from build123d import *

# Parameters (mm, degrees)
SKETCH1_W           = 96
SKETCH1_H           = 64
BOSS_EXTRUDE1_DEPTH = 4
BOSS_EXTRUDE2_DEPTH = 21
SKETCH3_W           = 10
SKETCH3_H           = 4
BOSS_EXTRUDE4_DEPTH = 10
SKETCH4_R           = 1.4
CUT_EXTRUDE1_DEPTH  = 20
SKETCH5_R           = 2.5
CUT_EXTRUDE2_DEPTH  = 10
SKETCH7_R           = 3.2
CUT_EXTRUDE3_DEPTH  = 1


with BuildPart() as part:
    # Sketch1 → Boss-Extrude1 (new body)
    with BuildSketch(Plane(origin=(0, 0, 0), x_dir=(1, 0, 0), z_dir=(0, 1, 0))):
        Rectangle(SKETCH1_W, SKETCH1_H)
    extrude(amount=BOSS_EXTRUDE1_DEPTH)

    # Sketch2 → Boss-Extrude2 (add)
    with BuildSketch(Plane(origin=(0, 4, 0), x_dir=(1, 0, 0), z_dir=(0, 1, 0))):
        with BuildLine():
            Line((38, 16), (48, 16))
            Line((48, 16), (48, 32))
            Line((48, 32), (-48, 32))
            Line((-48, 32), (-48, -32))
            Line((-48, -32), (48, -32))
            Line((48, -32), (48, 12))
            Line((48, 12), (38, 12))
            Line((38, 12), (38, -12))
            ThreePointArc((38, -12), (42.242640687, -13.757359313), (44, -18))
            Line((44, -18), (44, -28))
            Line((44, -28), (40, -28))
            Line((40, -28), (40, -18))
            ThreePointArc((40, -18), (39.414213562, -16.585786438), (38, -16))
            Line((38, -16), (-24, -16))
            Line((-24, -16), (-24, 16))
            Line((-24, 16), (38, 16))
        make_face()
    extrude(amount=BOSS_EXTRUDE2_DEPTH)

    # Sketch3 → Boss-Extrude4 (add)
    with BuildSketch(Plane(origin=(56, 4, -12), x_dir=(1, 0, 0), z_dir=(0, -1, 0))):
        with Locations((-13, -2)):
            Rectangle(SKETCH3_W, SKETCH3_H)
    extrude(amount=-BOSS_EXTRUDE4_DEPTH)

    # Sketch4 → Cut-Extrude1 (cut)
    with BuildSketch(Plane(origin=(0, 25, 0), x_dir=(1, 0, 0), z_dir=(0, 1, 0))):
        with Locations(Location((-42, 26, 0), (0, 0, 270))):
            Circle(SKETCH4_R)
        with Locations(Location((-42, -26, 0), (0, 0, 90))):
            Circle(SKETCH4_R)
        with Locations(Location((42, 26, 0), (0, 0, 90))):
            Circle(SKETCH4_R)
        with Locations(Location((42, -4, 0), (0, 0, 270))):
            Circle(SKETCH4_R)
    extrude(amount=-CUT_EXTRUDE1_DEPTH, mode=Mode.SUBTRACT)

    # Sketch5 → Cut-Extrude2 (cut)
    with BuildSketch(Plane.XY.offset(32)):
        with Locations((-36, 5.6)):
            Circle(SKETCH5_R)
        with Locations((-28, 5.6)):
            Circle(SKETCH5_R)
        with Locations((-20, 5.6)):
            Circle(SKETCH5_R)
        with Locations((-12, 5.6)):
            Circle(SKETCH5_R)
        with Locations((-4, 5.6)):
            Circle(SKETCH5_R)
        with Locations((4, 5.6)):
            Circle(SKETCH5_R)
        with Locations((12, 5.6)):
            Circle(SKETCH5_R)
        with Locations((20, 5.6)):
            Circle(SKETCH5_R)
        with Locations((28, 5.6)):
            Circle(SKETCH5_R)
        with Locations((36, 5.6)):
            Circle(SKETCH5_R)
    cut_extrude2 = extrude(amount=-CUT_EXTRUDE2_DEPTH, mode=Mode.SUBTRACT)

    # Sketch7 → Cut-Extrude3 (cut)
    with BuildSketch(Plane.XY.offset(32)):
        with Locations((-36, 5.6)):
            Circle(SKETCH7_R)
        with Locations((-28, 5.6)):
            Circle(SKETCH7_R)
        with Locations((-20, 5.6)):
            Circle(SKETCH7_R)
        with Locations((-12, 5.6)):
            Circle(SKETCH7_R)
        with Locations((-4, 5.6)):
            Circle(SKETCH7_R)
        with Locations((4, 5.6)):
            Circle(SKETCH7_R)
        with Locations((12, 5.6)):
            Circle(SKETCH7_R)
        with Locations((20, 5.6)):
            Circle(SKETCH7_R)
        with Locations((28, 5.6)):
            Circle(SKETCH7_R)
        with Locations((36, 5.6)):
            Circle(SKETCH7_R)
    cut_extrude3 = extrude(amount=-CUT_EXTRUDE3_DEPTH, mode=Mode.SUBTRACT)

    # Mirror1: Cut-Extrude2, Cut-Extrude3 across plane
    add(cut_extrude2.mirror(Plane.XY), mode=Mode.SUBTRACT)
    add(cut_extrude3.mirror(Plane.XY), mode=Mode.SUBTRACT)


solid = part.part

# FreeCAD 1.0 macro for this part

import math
import FreeCAD as App
import Part
import Sketcher
Q = App.Units.Quantity

doc = App.newDocument("Part")
body = doc.addObject("PartDesign::Body", "Body")

# Sketch on XZ plane
sketch1 = body.newObject("Sketcher::SketchObject", "Sketch")
sketch1.AttachmentSupport = (doc.getObject("XZ_Plane"), [""])
sketch1.MapMode = "FlatFace"
sketch1.addGeometry(Part.LineSegment(App.Vector(-48, -32, 0), App.Vector(-48, 32, 0)), False)
sketch1.addGeometry(Part.LineSegment(App.Vector(-48, 32, 0), App.Vector(48, 32, 0)), False)
sketch1.addGeometry(Part.LineSegment(App.Vector(48, 32, 0), App.Vector(48, -32, 0)), False)
sketch1.addGeometry(Part.LineSegment(App.Vector(48, -32, 0), App.Vector(-48, -32, 0)), False)
sketch1.addConstraint(Sketcher.Constraint("Coincident", 0, 2, 1, 1))
sketch1.addConstraint(Sketcher.Constraint("Coincident", 1, 2, 2, 1))
sketch1.addConstraint(Sketcher.Constraint("Coincident", 2, 2, 3, 1))
sketch1.addConstraint(Sketcher.Constraint("Coincident", 3, 2, 0, 1))
sketch1.addConstraint(Sketcher.Constraint("Vertical", 0))
sketch1.addConstraint(Sketcher.Constraint("Horizontal", 1))
sketch1.addConstraint(Sketcher.Constraint("Vertical", 2))
sketch1.addConstraint(Sketcher.Constraint("Horizontal", 3))
sketch1.addConstraint(Sketcher.Constraint("Symmetric", 0, 2, 2, 2, -1, 1))
sketch1.addConstraint(Sketcher.Constraint("DistanceX", 1, 1, 1, 2, Q("96 mm")))
sketch1.addConstraint(Sketcher.Constraint("DistanceY", 0, 1, 0, 2, Q("64 mm")))
pad1 = body.newObject("PartDesign::Pad", "Pad")
pad1.Profile = sketch1
pad1.Length = 4
pad1.Reversed = True

# Sketch on XZ plane
sketch2 = body.newObject("Sketcher::SketchObject", "Sketch001")
sketch2.AttachmentSupport = (doc.getObject("XZ_Plane"), [""])
sketch2.MapMode = "FlatFace"
sketch2.AttachmentOffset = App.Placement(App.Vector(0, 0, -4), App.Rotation())
sketch2.addGeometry(Part.LineSegment(App.Vector(48, -16, 0), App.Vector(48, -32, 0)), False)
sketch2.addGeometry(Part.LineSegment(App.Vector(48, -32, 0), App.Vector(-48, -32, 0)), False)
sketch2.addGeometry(Part.LineSegment(App.Vector(-48, -32, 0), App.Vector(-48, 32, 0)), False)
sketch2.addGeometry(Part.LineSegment(App.Vector(-48, 32, 0), App.Vector(48, 32, 0)), False)
sketch2.addGeometry(Part.LineSegment(App.Vector(48, 32, 0), App.Vector(48, -12, 0)), False)
sketch2.addGeometry(Part.LineSegment(App.Vector(48, -12, 0), App.Vector(38, -12, 0)), False)
sketch2.addGeometry(Part.LineSegment(App.Vector(38, -12, 0), App.Vector(38, 12, 0)), False)
sketch2.addGeometry(Part.ArcOfCircle(Part.Circle(App.Vector(38, 18, 0), App.Vector(0, 0, 1), 6), math.radians(-90), math.radians(0)), False)
sketch2.addGeometry(Part.LineSegment(App.Vector(44, 18, 0), App.Vector(44, 28, 0)), False)
sketch2.addGeometry(Part.LineSegment(App.Vector(44, 28, 0), App.Vector(40, 28, 0)), False)
sketch2.addGeometry(Part.LineSegment(App.Vector(40, 28, 0), App.Vector(40, 18, 0)), False)
sketch2.addGeometry(Part.ArcOfCircle(Part.Circle(App.Vector(38, 18, 0), App.Vector(0, 0, 1), 2), math.radians(-90), math.radians(0)), False)
sketch2.addGeometry(Part.LineSegment(App.Vector(38, 16, 0), App.Vector(-24, 16, 0)), False)
sketch2.addGeometry(Part.LineSegment(App.Vector(-24, 16, 0), App.Vector(-24, -16, 0)), False)
sketch2.addGeometry(Part.LineSegment(App.Vector(-24, -16, 0), App.Vector(48, -16, 0)), False)
sketch2.addConstraint(Sketcher.Constraint("Coincident", 0, 2, 1, 1))
sketch2.addConstraint(Sketcher.Constraint("Coincident", 1, 2, 2, 1))
sketch2.addConstraint(Sketcher.Constraint("Coincident", 2, 2, 3, 1))
sketch2.addConstraint(Sketcher.Constraint("Coincident", 3, 2, 4, 1))
sketch2.addConstraint(Sketcher.Constraint("Coincident", 4, 2, 5, 1))
sketch2.addConstraint(Sketcher.Constraint("Coincident", 5, 2, 6, 1))
sketch2.addConstraint(Sketcher.Constraint("Coincident", 6, 2, 7, 1))
sketch2.addConstraint(Sketcher.Constraint("Tangent", 7, 2, 8, 1))
sketch2.addConstraint(Sketcher.Constraint("Coincident", 8, 2, 9, 1))
sketch2.addConstraint(Sketcher.Constraint("Coincident", 9, 2, 10, 1))
sketch2.addConstraint(Sketcher.Constraint("Tangent", 10, 2, 11, 2))
sketch2.addConstraint(Sketcher.Constraint("Tangent", 11, 1, 12, 1))
sketch2.addConstraint(Sketcher.Constraint("Coincident", 12, 2, 13, 1))
sketch2.addConstraint(Sketcher.Constraint("Coincident", 13, 2, 14, 1))
sketch2.addConstraint(Sketcher.Constraint("Coincident", 14, 2, 0, 1))
sketch2.addConstraint(Sketcher.Constraint("Vertical", 0))
sketch2.addConstraint(Sketcher.Constraint("Horizontal", 1))
sketch2.addConstraint(Sketcher.Constraint("Vertical", 2))
sketch2.addConstraint(Sketcher.Constraint("Horizontal", 3))
sketch2.addConstraint(Sketcher.Constraint("Vertical", 4))
sketch2.addConstraint(Sketcher.Constraint("Horizontal", 5))
sketch2.addConstraint(Sketcher.Constraint("Vertical", 6))
sketch2.addConstraint(Sketcher.Constraint("Vertical", 8))
sketch2.addConstraint(Sketcher.Constraint("Horizontal", 9))
sketch2.addConstraint(Sketcher.Constraint("Vertical", 10))
sketch2.addConstraint(Sketcher.Constraint("Horizontal", 12))
sketch2.addConstraint(Sketcher.Constraint("Vertical", 13))
sketch2.addConstraint(Sketcher.Constraint("Horizontal", 14))
sketch2.addConstraint(Sketcher.Constraint("Coincident", 11, 3, 7, 3))
sketch2.addConstraint(Sketcher.Constraint("Symmetric", 0, 2, 2, 2, -1, 1))
sketch2.addConstraint(Sketcher.Constraint("Vertical", 0, 2, 3, 2))
sketch2.addConstraint(Sketcher.Constraint("Vertical", 11, 3, 5, 2))
sketch2.addConstraint(Sketcher.Constraint("Equal", 5, 8))
sketch2.addConstraint(Sketcher.Constraint("Radius", 7, Q("6 mm")))
sketch2.addConstraint(Sketcher.Constraint("Radius", 11, Q("2 mm")))
sketch2.addConstraint(Sketcher.Constraint("DistanceX", 1, 2, 1, 1, Q("96 mm")))
sketch2.addConstraint(Sketcher.Constraint("DistanceX", 5, 2, 5, 1, Q("10 mm")))
sketch2.addConstraint(Sketcher.Constraint("DistanceX", 12, 2, 12, 1, Q("62 mm")))
sketch2.addConstraint(Sketcher.Constraint("DistanceY", 0, 2, 0, 1, Q("16 mm")))
sketch2.addConstraint(Sketcher.Constraint("DistanceY", 2, 1, 2, 2, Q("64 mm")))
sketch2.addConstraint(Sketcher.Constraint("DistanceY", 4, 2, 4, 1, Q("44 mm")))
sketch2.addConstraint(Sketcher.Constraint("DistanceY", 6, 1, 6, 2, Q("24 mm")))
pad2 = body.newObject("PartDesign::Pad", "Pad001")
pad2.Profile = sketch2
pad2.Length = 21
pad2.Reversed = True

# Sketch on XZ plane
sketch3 = body.newObject("Sketcher::SketchObject", "Sketch002")
sketch3.AttachmentSupport = (doc.getObject("XZ_Plane"), [""])
sketch3.MapMode = "FlatFace"
sketch3.AttachmentOffset = App.Placement(App.Vector(0, 0, -4), App.Rotation())
sketch3.addGeometry(Part.LineSegment(App.Vector(38, -12, 0), App.Vector(38, -16, 0)), False)
sketch3.addGeometry(Part.LineSegment(App.Vector(38, -16, 0), App.Vector(48, -16, 0)), False)
sketch3.addGeometry(Part.LineSegment(App.Vector(48, -16, 0), App.Vector(48, -12, 0)), False)
sketch3.addGeometry(Part.LineSegment(App.Vector(48, -12, 0), App.Vector(38, -12, 0)), False)
sketch3.addConstraint(Sketcher.Constraint("Coincident", 0, 2, 1, 1))
sketch3.addConstraint(Sketcher.Constraint("Coincident", 1, 2, 2, 1))
sketch3.addConstraint(Sketcher.Constraint("Coincident", 2, 2, 3, 1))
sketch3.addConstraint(Sketcher.Constraint("Coincident", 3, 2, 0, 1))
sketch3.addConstraint(Sketcher.Constraint("Vertical", 0))
sketch3.addConstraint(Sketcher.Constraint("Horizontal", 1))
sketch3.addConstraint(Sketcher.Constraint("Vertical", 2))
sketch3.addConstraint(Sketcher.Constraint("Horizontal", 3))
sketch3.addConstraint(Sketcher.Constraint("DistanceX", 1, 1, 1, 2, Q("10 mm")))
sketch3.addConstraint(Sketcher.Constraint("DistanceY", 0, 2, 0, 1, Q("4 mm")))
sketch3.addConstraint(Sketcher.Constraint("DistanceX", -1, 1, 0, 2, Q("38 mm")))
sketch3.addConstraint(Sketcher.Constraint("DistanceY", 0, 2, -1, 1, Q("16 mm")))
pad3 = body.newObject("PartDesign::Pad", "Pad002")
pad3.Profile = sketch3
pad3.Length = 10
pad3.Reversed = True

# Sketch on XZ plane
sketch4 = body.newObject("Sketcher::SketchObject", "Sketch003")
sketch4.AttachmentSupport = (doc.getObject("XZ_Plane"), [""])
sketch4.MapMode = "FlatFace"
sketch4.AttachmentOffset = App.Placement(App.Vector(0, 0, -25), App.Rotation())
sketch4.addGeometry(Part.Circle(App.Vector(-42, -26, 0), App.Vector(0, 0, 1), 1.4), False)
sketch4.addGeometry(Part.Circle(App.Vector(-42, 26, 0), App.Vector(0, 0, 1), 1.4), False)
sketch4.addGeometry(Part.Circle(App.Vector(42, -26, 0), App.Vector(0, 0, 1), 1.4), False)
sketch4.addGeometry(Part.Circle(App.Vector(42, 4, 0), App.Vector(0, 0, 1), 1.4), False)
sketch4.addConstraint(Sketcher.Constraint("Equal", 0, 1))
sketch4.addConstraint(Sketcher.Constraint("Equal", 1, 2))
sketch4.addConstraint(Sketcher.Constraint("Equal", 2, 3))
sketch4.addConstraint(Sketcher.Constraint("Symmetric", 1, 3, 2, 3, -1, 1))
sketch4.addConstraint(Sketcher.Constraint("Symmetric", 0, 3, 2, 3, -2))
sketch4.addConstraint(Sketcher.Constraint("Vertical", 2, 3, 3, 3))
sketch4.addConstraint(Sketcher.Constraint("Diameter", 0, Q("2.8 mm")))
sketch4.addConstraint(Sketcher.Constraint("DistanceX", 0, 3, -1, 1, Q("42 mm")))
sketch4.addConstraint(Sketcher.Constraint("DistanceY", 0, 3, -1, 1, Q("26 mm")))
sketch4.addConstraint(Sketcher.Constraint("DistanceY", -1, 1, 3, 3, Q("4 mm")))
pocket1 = body.newObject("PartDesign::Pocket", "Pocket")
pocket1.Profile = sketch4
pocket1.Length = 20
pocket1.Reversed = True

# Sketch on XY plane
sketch5 = body.newObject("Sketcher::SketchObject", "Sketch004")
sketch5.AttachmentSupport = (doc.getObject("XY_Plane"), [""])
sketch5.MapMode = "FlatFace"
sketch5.AttachmentOffset = App.Placement(App.Vector(0, 0, 32), App.Rotation())
sketch5.addGeometry(Part.Circle(App.Vector(-36, 5.6, 0), App.Vector(0, 0, 1), 2.5), False)
sketch5.addGeometry(Part.Circle(App.Vector(-28, 5.6, 0), App.Vector(0, 0, 1), 2.5), False)
sketch5.addGeometry(Part.Circle(App.Vector(-20, 5.6, 0), App.Vector(0, 0, 1), 2.5), False)
sketch5.addGeometry(Part.Circle(App.Vector(-12, 5.6, 0), App.Vector(0, 0, 1), 2.5), False)
sketch5.addGeometry(Part.Circle(App.Vector(-4, 5.6, 0), App.Vector(0, 0, 1), 2.5), False)
sketch5.addGeometry(Part.Circle(App.Vector(4, 5.6, 0), App.Vector(0, 0, 1), 2.5), False)
sketch5.addGeometry(Part.Circle(App.Vector(12, 5.6, 0), App.Vector(0, 0, 1), 2.5), False)
sketch5.addGeometry(Part.Circle(App.Vector(20, 5.6, 0), App.Vector(0, 0, 1), 2.5), False)
sketch5.addGeometry(Part.Circle(App.Vector(28, 5.6, 0), App.Vector(0, 0, 1), 2.5), False)
sketch5.addGeometry(Part.Circle(App.Vector(36, 5.6, 0), App.Vector(0, 0, 1), 2.5), False)
sketch5.addConstraint(Sketcher.Constraint("Equal", 0, 1))
sketch5.addConstraint(Sketcher.Constraint("Equal", 1, 2))
sketch5.addConstraint(Sketcher.Constraint("Equal", 2, 3))
sketch5.addConstraint(Sketcher.Constraint("Equal", 3, 4))
sketch5.addConstraint(Sketcher.Constraint("Equal", 4, 5))
sketch5.addConstraint(Sketcher.Constraint("Equal", 5, 6))
sketch5.addConstraint(Sketcher.Constraint("Equal", 6, 7))
sketch5.addConstraint(Sketcher.Constraint("Equal", 7, 8))
sketch5.addConstraint(Sketcher.Constraint("Equal", 8, 9))
sketch5.addConstraint(Sketcher.Constraint("Symmetric", 4, 3, 5, 3, -2))
sketch5.addConstraint(Sketcher.Constraint("Symmetric", 3, 3, 6, 3, -2))
sketch5.addConstraint(Sketcher.Constraint("Symmetric", 2, 3, 7, 3, -2))
sketch5.addConstraint(Sketcher.Constraint("Symmetric", 1, 3, 8, 3, -2))
sketch5.addConstraint(Sketcher.Constraint("Symmetric", 0, 3, 9, 3, -2))
sketch5.addConstraint(Sketcher.Constraint("Horizontal", 0, 3, 1, 3))
sketch5.addConstraint(Sketcher.Constraint("Horizontal", 1, 3, 2, 3))
sketch5.addConstraint(Sketcher.Constraint("Horizontal", 2, 3, 3, 3))
sketch5.addConstraint(Sketcher.Constraint("Horizontal", 3, 3, 4, 3))
sketch5.addConstraint(Sketcher.Constraint("Diameter", 0, Q("5 mm")))
sketch5.addConstraint(Sketcher.Constraint("DistanceX", 0, 3, -1, 1, Q("36 mm")))
sketch5.addConstraint(Sketcher.Constraint("DistanceX", 1, 3, -1, 1, Q("28 mm")))
sketch5.addConstraint(Sketcher.Constraint("DistanceX", 2, 3, -1, 1, Q("20 mm")))
sketch5.addConstraint(Sketcher.Constraint("DistanceX", 3, 3, -1, 1, Q("12 mm")))
sketch5.addConstraint(Sketcher.Constraint("DistanceX", 4, 3, -1, 1, Q("4 mm")))
sketch5.addConstraint(Sketcher.Constraint("DistanceY", -1, 1, 0, 3, Q("5.6 mm")))
pocket2 = body.newObject("PartDesign::Pocket", "Pocket001")
pocket2.Profile = sketch5
pocket2.Length = 10

# Sketch on XY plane
sketch6 = body.newObject("Sketcher::SketchObject", "Sketch005")
sketch6.AttachmentSupport = (doc.getObject("XY_Plane"), [""])
sketch6.MapMode = "FlatFace"
sketch6.AttachmentOffset = App.Placement(App.Vector(0, 0, 32), App.Rotation())
sketch6.addGeometry(Part.Circle(App.Vector(-36, 5.6, 0), App.Vector(0, 0, 1), 3.2), False)
sketch6.addGeometry(Part.Circle(App.Vector(-28, 5.6, 0), App.Vector(0, 0, 1), 3.2), False)
sketch6.addGeometry(Part.Circle(App.Vector(-20, 5.6, 0), App.Vector(0, 0, 1), 3.2), False)
sketch6.addGeometry(Part.Circle(App.Vector(-12, 5.6, 0), App.Vector(0, 0, 1), 3.2), False)
sketch6.addGeometry(Part.Circle(App.Vector(-4, 5.6, 0), App.Vector(0, 0, 1), 3.2), False)
sketch6.addGeometry(Part.Circle(App.Vector(4, 5.6, 0), App.Vector(0, 0, 1), 3.2), False)
sketch6.addGeometry(Part.Circle(App.Vector(12, 5.6, 0), App.Vector(0, 0, 1), 3.2), False)
sketch6.addGeometry(Part.Circle(App.Vector(20, 5.6, 0), App.Vector(0, 0, 1), 3.2), False)
sketch6.addGeometry(Part.Circle(App.Vector(28, 5.6, 0), App.Vector(0, 0, 1), 3.2), False)
sketch6.addGeometry(Part.Circle(App.Vector(36, 5.6, 0), App.Vector(0, 0, 1), 3.2), False)
sketch6.addConstraint(Sketcher.Constraint("Equal", 0, 1))
sketch6.addConstraint(Sketcher.Constraint("Equal", 1, 2))
sketch6.addConstraint(Sketcher.Constraint("Equal", 2, 3))
sketch6.addConstraint(Sketcher.Constraint("Equal", 3, 4))
sketch6.addConstraint(Sketcher.Constraint("Equal", 4, 5))
sketch6.addConstraint(Sketcher.Constraint("Equal", 5, 6))
sketch6.addConstraint(Sketcher.Constraint("Equal", 6, 7))
sketch6.addConstraint(Sketcher.Constraint("Equal", 7, 8))
sketch6.addConstraint(Sketcher.Constraint("Equal", 8, 9))
sketch6.addConstraint(Sketcher.Constraint("Symmetric", 4, 3, 5, 3, -2))
sketch6.addConstraint(Sketcher.Constraint("Symmetric", 3, 3, 6, 3, -2))
sketch6.addConstraint(Sketcher.Constraint("Symmetric", 2, 3, 7, 3, -2))
sketch6.addConstraint(Sketcher.Constraint("Symmetric", 1, 3, 8, 3, -2))
sketch6.addConstraint(Sketcher.Constraint("Symmetric", 0, 3, 9, 3, -2))
sketch6.addConstraint(Sketcher.Constraint("Horizontal", 0, 3, 1, 3))
sketch6.addConstraint(Sketcher.Constraint("Horizontal", 1, 3, 2, 3))
sketch6.addConstraint(Sketcher.Constraint("Horizontal", 2, 3, 3, 3))
sketch6.addConstraint(Sketcher.Constraint("Horizontal", 3, 3, 4, 3))
sketch6.addConstraint(Sketcher.Constraint("Diameter", 0, Q("6.4 mm")))
sketch6.addConstraint(Sketcher.Constraint("DistanceX", 0, 3, -1, 1, Q("36 mm")))
sketch6.addConstraint(Sketcher.Constraint("DistanceX", 1, 3, -1, 1, Q("28 mm")))
sketch6.addConstraint(Sketcher.Constraint("DistanceX", 2, 3, -1, 1, Q("20 mm")))
sketch6.addConstraint(Sketcher.Constraint("DistanceX", 3, 3, -1, 1, Q("12 mm")))
sketch6.addConstraint(Sketcher.Constraint("DistanceX", 4, 3, -1, 1, Q("4 mm")))
sketch6.addConstraint(Sketcher.Constraint("DistanceY", -1, 1, 0, 3, Q("5.6 mm")))
pocket3 = body.newObject("PartDesign::Pocket", "Pocket002")
pocket3.Profile = sketch6
pocket3.Length = 1
doc.recompute()

mirrored = body.newObject("PartDesign::Mirrored", "Mirrored")
mirrored.Originals = [pocket2, pocket3]
mirrored.MirrorPlane = (doc.getObject("XY_Plane"), [""])
body.Tip = mirrored

doc.recompute()
